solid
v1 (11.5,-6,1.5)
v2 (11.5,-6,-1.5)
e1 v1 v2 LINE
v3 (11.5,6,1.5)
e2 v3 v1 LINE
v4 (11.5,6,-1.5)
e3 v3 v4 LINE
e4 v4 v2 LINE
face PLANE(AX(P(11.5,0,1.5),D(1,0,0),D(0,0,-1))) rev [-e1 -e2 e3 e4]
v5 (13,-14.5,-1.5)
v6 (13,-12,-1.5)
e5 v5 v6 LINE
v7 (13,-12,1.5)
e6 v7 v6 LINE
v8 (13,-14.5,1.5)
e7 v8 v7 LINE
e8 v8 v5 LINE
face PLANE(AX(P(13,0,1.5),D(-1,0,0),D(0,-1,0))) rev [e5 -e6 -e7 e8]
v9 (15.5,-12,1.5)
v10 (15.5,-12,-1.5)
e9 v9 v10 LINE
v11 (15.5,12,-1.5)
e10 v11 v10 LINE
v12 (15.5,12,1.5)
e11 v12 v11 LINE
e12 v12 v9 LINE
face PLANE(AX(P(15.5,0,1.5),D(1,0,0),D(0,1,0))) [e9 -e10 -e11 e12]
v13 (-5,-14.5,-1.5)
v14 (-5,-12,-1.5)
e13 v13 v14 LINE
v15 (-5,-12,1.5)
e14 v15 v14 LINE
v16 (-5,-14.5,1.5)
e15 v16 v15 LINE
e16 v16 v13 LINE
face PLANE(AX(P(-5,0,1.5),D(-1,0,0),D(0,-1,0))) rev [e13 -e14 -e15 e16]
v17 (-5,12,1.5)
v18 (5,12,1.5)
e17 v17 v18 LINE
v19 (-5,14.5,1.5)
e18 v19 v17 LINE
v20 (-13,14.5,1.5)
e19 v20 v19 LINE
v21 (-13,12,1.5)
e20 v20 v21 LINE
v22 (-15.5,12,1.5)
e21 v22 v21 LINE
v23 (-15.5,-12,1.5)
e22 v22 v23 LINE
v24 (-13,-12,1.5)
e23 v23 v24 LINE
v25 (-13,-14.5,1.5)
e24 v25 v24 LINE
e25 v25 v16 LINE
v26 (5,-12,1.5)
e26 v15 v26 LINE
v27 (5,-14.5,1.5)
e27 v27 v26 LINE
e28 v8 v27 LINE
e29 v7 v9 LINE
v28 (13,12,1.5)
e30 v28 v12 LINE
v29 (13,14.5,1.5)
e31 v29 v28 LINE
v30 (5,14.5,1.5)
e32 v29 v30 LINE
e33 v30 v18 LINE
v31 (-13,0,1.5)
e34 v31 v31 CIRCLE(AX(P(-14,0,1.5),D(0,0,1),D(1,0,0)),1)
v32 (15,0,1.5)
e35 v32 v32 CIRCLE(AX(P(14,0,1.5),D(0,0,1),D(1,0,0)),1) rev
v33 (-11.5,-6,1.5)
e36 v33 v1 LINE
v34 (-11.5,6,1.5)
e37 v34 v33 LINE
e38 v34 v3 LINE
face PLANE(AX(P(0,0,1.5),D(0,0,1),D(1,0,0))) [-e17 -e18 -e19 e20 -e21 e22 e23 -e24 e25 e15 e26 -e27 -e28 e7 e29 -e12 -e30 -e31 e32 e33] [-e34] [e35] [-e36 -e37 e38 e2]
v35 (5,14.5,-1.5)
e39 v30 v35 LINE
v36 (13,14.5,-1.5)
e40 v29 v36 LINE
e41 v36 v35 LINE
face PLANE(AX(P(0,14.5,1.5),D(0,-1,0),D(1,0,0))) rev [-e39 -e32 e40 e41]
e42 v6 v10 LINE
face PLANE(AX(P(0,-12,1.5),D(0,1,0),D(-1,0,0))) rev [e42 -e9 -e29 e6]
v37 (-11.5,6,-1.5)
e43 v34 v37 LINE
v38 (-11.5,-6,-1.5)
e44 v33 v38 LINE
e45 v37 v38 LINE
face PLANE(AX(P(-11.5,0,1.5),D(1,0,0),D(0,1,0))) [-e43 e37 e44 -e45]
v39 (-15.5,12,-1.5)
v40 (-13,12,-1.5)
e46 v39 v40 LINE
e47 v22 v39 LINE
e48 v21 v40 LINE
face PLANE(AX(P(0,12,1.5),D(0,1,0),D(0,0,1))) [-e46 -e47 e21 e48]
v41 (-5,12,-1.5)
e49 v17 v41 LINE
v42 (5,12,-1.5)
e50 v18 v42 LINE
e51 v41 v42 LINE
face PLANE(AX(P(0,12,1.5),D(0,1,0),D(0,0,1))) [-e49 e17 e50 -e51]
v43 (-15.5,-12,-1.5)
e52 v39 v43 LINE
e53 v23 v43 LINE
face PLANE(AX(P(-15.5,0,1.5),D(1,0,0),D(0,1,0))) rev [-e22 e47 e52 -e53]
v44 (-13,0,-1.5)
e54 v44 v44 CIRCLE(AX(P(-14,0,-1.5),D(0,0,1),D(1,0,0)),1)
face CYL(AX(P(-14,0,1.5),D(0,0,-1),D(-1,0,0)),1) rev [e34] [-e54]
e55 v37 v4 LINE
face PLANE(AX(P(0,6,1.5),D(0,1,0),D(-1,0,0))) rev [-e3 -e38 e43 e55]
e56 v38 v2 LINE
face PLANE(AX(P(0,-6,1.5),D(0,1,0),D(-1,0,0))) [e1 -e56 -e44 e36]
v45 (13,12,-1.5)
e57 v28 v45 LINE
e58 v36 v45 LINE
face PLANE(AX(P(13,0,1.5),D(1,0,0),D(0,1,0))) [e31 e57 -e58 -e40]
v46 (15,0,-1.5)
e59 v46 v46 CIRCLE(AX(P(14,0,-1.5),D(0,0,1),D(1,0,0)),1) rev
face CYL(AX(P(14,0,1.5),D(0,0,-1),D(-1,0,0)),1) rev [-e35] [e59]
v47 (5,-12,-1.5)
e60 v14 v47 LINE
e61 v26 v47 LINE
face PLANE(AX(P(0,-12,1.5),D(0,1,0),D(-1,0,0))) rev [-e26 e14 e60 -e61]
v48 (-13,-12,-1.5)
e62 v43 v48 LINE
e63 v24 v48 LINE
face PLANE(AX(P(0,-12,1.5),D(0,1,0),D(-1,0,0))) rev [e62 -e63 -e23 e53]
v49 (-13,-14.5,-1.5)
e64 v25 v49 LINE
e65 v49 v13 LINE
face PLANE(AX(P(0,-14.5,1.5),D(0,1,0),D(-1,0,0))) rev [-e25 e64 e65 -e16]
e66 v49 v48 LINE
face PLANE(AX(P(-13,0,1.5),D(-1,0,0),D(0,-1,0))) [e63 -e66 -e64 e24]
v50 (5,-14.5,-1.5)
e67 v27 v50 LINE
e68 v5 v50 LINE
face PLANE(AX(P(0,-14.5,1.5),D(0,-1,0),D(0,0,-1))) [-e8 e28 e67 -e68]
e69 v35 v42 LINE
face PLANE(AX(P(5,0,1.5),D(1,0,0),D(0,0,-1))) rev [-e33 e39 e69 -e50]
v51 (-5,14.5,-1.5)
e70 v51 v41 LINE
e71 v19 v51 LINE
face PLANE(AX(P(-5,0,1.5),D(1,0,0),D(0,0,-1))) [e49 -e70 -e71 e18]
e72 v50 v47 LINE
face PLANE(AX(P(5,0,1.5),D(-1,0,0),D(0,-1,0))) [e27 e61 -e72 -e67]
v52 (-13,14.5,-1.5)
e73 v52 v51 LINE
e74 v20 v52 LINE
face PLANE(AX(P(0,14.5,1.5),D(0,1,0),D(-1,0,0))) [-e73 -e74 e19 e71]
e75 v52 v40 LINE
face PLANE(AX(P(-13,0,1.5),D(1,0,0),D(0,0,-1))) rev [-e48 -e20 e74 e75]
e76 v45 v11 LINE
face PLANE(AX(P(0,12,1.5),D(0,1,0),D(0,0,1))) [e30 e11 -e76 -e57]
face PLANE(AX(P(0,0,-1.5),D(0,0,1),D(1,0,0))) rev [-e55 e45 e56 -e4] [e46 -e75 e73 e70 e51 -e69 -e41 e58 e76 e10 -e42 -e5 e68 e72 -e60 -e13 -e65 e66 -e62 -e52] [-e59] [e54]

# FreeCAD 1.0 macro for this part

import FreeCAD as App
import Part
import Sketcher


def add_polygon(sketch, points):
    """Adds a closed chain of lines whose ends are joined by coincident constraints."""
    first, n = sketch.GeometryCount, len(points)
    for a, b in zip(points, points[1:] + points[:1]):
        sketch.addGeometry(Part.LineSegment(App.Vector(*a, 0), App.Vector(*b, 0)), False)
    for i in range(n):
        sketch.addConstraint(Sketcher.Constraint("Coincident", first + i, 2, first + (i + 1) % n, 1))

doc = App.newDocument("Part")
body = doc.addObject("PartDesign::Body", "Body")

# Sketch on XY plane
sketch1 = body.newObject("Sketcher::SketchObject", "Sketch")
sketch1.AttachmentSupport = (doc.getObject("XY_Plane"), [""])
sketch1.MapMode = "FlatFace"
add_polygon(sketch1, [(-13, 12), (-15.5, 12), (-15.5, -12), (-13, -12), (-13, -14.5), (-5, -14.5), (-5, -12), (5, -12), (5, -14.5), (13, -14.5), (13, -12), (15.5, -12), (15.5, 12), (13, 12), (13, 14.5), (5, 14.5), (5, 12), (-5, 12), (-5, 14.5), (-13, 14.5)])  # lines 0-19
sketch1.addGeometry(Part.Circle(App.Vector(-14, 0, 0), App.Vector(0, 0, 1), 1), False)  # 20
add_polygon(sketch1, [(11.5, -6), (-11.5, -6), (-11.5, 6), (11.5, 6)])  # lines 21-24
sketch1.addGeometry(Part.Circle(App.Vector(14, 0, 0), App.Vector(0, 0, 1), 1), False)  # 25
sketch1.addConstraint(Sketcher.Constraint("Horizontal", 0))
sketch1.addConstraint(Sketcher.Constraint("Vertical", 1))
sketch1.addConstraint(Sketcher.Constraint("Horizontal", 2))
sketch1.addConstraint(Sketcher.Constraint("Vertical", 3))
sketch1.addConstraint(Sketcher.Constraint("Horizontal", 4))
sketch1.addConstraint(Sketcher.Constraint("Vertical", 5))
sketch1.addConstraint(Sketcher.Constraint("Horizontal", 6))
sketch1.addConstraint(Sketcher.Constraint("Vertical", 7))
sketch1.addConstraint(Sketcher.Constraint("Horizontal", 8))
sketch1.addConstraint(Sketcher.Constraint("Vertical", 9))
sketch1.addConstraint(Sketcher.Constraint("Horizontal", 10))
sketch1.addConstraint(Sketcher.Constraint("Vertical", 11))
sketch1.addConstraint(Sketcher.Constraint("Horizontal", 12))
sketch1.addConstraint(Sketcher.Constraint("Vertical", 13))
sketch1.addConstraint(Sketcher.Constraint("Horizontal", 14))
sketch1.addConstraint(Sketcher.Constraint("Vertical", 15))
sketch1.addConstraint(Sketcher.Constraint("Horizontal", 16))
sketch1.addConstraint(Sketcher.Constraint("Vertical", 17))
sketch1.addConstraint(Sketcher.Constraint("Horizontal", 18))
sketch1.addConstraint(Sketcher.Constraint("Vertical", 19))
sketch1.addConstraint(Sketcher.Constraint("Horizontal", 21))
sketch1.addConstraint(Sketcher.Constraint("Vertical", 22))
sketch1.addConstraint(Sketcher.Constraint("Horizontal", 23))
sketch1.addConstraint(Sketcher.Constraint("Vertical", 24))
sketch1.addConstraint(Sketcher.Constraint("Equal", 20, 25))
sketch1.addConstraint(Sketcher.Constraint("Symmetric", 20, 3, 25, 3, -1, 1))
sketch1.addConstraint(Sketcher.Constraint("Symmetric", 0, 2, 10, 2, -1, 1))
sketch1.addConstraint(Sketcher.Constraint("Symmetric", 2, 2, 12, 2, -1, 1))
sketch1.addConstraint(Sketcher.Constraint("Symmetric", 4, 2, 14, 2, -1, 1))
sketch1.addConstraint(Sketcher.Constraint("Symmetric", 6, 2, 16, 2, -1, 1))
sketch1.addConstraint(Sketcher.Constraint("Symmetric", 8, 2, 18, 2, -1, 1))
sketch1.addConstraint(Sketcher.Constraint("Symmetric", 21, 2, 23, 2, -1, 1))
sketch1.addConstraint(Sketcher.Constraint("Symmetric", 4, 2, 7, 2, -2))
sketch1.addConstraint(Sketcher.Constraint("Symmetric", 2, 2, 9, 2, -2))
sketch1.addConstraint(Sketcher.Constraint("PointOnObject", 20, 3, -1))
sketch1.addConstraint(Sketcher.Constraint("Horizontal", 2, 2, 5, 2))
sketch1.addConstraint(Sketcher.Constraint("Equal", 12, 3))
sketch1.addConstraint(Sketcher.Constraint("Diameter", 20, 2.0))
sketch1.addConstraint(Sketcher.Constraint("DistanceX", 4, 1, 4, 2, 8.0))
sketch1.addConstraint(Sketcher.Constraint("DistanceX", 6, 1, 6, 2, 10.0))
sketch1.addConstraint(Sketcher.Constraint("DistanceX", 21, 2, 21, 1, 23.0))
sketch1.addConstraint(Sketcher.Constraint("DistanceY", 1, 2, 1, 1, 24.0))
sketch1.addConstraint(Sketcher.Constraint("DistanceY", 22, 1, 22, 2, 12.0))
sketch1.addConstraint(Sketcher.Constraint("DistanceX", 0, 2, 0, 1, 2.5))
sketch1.addConstraint(Sketcher.Constraint("DistanceX", 20, 3, -1, 1, 14.0))
pad1 = body.newObject("PartDesign::Pad", "Pad")
pad1.Profile = sketch1
pad1.Length = 3
pad1.Midplane = True

doc.recompute()
